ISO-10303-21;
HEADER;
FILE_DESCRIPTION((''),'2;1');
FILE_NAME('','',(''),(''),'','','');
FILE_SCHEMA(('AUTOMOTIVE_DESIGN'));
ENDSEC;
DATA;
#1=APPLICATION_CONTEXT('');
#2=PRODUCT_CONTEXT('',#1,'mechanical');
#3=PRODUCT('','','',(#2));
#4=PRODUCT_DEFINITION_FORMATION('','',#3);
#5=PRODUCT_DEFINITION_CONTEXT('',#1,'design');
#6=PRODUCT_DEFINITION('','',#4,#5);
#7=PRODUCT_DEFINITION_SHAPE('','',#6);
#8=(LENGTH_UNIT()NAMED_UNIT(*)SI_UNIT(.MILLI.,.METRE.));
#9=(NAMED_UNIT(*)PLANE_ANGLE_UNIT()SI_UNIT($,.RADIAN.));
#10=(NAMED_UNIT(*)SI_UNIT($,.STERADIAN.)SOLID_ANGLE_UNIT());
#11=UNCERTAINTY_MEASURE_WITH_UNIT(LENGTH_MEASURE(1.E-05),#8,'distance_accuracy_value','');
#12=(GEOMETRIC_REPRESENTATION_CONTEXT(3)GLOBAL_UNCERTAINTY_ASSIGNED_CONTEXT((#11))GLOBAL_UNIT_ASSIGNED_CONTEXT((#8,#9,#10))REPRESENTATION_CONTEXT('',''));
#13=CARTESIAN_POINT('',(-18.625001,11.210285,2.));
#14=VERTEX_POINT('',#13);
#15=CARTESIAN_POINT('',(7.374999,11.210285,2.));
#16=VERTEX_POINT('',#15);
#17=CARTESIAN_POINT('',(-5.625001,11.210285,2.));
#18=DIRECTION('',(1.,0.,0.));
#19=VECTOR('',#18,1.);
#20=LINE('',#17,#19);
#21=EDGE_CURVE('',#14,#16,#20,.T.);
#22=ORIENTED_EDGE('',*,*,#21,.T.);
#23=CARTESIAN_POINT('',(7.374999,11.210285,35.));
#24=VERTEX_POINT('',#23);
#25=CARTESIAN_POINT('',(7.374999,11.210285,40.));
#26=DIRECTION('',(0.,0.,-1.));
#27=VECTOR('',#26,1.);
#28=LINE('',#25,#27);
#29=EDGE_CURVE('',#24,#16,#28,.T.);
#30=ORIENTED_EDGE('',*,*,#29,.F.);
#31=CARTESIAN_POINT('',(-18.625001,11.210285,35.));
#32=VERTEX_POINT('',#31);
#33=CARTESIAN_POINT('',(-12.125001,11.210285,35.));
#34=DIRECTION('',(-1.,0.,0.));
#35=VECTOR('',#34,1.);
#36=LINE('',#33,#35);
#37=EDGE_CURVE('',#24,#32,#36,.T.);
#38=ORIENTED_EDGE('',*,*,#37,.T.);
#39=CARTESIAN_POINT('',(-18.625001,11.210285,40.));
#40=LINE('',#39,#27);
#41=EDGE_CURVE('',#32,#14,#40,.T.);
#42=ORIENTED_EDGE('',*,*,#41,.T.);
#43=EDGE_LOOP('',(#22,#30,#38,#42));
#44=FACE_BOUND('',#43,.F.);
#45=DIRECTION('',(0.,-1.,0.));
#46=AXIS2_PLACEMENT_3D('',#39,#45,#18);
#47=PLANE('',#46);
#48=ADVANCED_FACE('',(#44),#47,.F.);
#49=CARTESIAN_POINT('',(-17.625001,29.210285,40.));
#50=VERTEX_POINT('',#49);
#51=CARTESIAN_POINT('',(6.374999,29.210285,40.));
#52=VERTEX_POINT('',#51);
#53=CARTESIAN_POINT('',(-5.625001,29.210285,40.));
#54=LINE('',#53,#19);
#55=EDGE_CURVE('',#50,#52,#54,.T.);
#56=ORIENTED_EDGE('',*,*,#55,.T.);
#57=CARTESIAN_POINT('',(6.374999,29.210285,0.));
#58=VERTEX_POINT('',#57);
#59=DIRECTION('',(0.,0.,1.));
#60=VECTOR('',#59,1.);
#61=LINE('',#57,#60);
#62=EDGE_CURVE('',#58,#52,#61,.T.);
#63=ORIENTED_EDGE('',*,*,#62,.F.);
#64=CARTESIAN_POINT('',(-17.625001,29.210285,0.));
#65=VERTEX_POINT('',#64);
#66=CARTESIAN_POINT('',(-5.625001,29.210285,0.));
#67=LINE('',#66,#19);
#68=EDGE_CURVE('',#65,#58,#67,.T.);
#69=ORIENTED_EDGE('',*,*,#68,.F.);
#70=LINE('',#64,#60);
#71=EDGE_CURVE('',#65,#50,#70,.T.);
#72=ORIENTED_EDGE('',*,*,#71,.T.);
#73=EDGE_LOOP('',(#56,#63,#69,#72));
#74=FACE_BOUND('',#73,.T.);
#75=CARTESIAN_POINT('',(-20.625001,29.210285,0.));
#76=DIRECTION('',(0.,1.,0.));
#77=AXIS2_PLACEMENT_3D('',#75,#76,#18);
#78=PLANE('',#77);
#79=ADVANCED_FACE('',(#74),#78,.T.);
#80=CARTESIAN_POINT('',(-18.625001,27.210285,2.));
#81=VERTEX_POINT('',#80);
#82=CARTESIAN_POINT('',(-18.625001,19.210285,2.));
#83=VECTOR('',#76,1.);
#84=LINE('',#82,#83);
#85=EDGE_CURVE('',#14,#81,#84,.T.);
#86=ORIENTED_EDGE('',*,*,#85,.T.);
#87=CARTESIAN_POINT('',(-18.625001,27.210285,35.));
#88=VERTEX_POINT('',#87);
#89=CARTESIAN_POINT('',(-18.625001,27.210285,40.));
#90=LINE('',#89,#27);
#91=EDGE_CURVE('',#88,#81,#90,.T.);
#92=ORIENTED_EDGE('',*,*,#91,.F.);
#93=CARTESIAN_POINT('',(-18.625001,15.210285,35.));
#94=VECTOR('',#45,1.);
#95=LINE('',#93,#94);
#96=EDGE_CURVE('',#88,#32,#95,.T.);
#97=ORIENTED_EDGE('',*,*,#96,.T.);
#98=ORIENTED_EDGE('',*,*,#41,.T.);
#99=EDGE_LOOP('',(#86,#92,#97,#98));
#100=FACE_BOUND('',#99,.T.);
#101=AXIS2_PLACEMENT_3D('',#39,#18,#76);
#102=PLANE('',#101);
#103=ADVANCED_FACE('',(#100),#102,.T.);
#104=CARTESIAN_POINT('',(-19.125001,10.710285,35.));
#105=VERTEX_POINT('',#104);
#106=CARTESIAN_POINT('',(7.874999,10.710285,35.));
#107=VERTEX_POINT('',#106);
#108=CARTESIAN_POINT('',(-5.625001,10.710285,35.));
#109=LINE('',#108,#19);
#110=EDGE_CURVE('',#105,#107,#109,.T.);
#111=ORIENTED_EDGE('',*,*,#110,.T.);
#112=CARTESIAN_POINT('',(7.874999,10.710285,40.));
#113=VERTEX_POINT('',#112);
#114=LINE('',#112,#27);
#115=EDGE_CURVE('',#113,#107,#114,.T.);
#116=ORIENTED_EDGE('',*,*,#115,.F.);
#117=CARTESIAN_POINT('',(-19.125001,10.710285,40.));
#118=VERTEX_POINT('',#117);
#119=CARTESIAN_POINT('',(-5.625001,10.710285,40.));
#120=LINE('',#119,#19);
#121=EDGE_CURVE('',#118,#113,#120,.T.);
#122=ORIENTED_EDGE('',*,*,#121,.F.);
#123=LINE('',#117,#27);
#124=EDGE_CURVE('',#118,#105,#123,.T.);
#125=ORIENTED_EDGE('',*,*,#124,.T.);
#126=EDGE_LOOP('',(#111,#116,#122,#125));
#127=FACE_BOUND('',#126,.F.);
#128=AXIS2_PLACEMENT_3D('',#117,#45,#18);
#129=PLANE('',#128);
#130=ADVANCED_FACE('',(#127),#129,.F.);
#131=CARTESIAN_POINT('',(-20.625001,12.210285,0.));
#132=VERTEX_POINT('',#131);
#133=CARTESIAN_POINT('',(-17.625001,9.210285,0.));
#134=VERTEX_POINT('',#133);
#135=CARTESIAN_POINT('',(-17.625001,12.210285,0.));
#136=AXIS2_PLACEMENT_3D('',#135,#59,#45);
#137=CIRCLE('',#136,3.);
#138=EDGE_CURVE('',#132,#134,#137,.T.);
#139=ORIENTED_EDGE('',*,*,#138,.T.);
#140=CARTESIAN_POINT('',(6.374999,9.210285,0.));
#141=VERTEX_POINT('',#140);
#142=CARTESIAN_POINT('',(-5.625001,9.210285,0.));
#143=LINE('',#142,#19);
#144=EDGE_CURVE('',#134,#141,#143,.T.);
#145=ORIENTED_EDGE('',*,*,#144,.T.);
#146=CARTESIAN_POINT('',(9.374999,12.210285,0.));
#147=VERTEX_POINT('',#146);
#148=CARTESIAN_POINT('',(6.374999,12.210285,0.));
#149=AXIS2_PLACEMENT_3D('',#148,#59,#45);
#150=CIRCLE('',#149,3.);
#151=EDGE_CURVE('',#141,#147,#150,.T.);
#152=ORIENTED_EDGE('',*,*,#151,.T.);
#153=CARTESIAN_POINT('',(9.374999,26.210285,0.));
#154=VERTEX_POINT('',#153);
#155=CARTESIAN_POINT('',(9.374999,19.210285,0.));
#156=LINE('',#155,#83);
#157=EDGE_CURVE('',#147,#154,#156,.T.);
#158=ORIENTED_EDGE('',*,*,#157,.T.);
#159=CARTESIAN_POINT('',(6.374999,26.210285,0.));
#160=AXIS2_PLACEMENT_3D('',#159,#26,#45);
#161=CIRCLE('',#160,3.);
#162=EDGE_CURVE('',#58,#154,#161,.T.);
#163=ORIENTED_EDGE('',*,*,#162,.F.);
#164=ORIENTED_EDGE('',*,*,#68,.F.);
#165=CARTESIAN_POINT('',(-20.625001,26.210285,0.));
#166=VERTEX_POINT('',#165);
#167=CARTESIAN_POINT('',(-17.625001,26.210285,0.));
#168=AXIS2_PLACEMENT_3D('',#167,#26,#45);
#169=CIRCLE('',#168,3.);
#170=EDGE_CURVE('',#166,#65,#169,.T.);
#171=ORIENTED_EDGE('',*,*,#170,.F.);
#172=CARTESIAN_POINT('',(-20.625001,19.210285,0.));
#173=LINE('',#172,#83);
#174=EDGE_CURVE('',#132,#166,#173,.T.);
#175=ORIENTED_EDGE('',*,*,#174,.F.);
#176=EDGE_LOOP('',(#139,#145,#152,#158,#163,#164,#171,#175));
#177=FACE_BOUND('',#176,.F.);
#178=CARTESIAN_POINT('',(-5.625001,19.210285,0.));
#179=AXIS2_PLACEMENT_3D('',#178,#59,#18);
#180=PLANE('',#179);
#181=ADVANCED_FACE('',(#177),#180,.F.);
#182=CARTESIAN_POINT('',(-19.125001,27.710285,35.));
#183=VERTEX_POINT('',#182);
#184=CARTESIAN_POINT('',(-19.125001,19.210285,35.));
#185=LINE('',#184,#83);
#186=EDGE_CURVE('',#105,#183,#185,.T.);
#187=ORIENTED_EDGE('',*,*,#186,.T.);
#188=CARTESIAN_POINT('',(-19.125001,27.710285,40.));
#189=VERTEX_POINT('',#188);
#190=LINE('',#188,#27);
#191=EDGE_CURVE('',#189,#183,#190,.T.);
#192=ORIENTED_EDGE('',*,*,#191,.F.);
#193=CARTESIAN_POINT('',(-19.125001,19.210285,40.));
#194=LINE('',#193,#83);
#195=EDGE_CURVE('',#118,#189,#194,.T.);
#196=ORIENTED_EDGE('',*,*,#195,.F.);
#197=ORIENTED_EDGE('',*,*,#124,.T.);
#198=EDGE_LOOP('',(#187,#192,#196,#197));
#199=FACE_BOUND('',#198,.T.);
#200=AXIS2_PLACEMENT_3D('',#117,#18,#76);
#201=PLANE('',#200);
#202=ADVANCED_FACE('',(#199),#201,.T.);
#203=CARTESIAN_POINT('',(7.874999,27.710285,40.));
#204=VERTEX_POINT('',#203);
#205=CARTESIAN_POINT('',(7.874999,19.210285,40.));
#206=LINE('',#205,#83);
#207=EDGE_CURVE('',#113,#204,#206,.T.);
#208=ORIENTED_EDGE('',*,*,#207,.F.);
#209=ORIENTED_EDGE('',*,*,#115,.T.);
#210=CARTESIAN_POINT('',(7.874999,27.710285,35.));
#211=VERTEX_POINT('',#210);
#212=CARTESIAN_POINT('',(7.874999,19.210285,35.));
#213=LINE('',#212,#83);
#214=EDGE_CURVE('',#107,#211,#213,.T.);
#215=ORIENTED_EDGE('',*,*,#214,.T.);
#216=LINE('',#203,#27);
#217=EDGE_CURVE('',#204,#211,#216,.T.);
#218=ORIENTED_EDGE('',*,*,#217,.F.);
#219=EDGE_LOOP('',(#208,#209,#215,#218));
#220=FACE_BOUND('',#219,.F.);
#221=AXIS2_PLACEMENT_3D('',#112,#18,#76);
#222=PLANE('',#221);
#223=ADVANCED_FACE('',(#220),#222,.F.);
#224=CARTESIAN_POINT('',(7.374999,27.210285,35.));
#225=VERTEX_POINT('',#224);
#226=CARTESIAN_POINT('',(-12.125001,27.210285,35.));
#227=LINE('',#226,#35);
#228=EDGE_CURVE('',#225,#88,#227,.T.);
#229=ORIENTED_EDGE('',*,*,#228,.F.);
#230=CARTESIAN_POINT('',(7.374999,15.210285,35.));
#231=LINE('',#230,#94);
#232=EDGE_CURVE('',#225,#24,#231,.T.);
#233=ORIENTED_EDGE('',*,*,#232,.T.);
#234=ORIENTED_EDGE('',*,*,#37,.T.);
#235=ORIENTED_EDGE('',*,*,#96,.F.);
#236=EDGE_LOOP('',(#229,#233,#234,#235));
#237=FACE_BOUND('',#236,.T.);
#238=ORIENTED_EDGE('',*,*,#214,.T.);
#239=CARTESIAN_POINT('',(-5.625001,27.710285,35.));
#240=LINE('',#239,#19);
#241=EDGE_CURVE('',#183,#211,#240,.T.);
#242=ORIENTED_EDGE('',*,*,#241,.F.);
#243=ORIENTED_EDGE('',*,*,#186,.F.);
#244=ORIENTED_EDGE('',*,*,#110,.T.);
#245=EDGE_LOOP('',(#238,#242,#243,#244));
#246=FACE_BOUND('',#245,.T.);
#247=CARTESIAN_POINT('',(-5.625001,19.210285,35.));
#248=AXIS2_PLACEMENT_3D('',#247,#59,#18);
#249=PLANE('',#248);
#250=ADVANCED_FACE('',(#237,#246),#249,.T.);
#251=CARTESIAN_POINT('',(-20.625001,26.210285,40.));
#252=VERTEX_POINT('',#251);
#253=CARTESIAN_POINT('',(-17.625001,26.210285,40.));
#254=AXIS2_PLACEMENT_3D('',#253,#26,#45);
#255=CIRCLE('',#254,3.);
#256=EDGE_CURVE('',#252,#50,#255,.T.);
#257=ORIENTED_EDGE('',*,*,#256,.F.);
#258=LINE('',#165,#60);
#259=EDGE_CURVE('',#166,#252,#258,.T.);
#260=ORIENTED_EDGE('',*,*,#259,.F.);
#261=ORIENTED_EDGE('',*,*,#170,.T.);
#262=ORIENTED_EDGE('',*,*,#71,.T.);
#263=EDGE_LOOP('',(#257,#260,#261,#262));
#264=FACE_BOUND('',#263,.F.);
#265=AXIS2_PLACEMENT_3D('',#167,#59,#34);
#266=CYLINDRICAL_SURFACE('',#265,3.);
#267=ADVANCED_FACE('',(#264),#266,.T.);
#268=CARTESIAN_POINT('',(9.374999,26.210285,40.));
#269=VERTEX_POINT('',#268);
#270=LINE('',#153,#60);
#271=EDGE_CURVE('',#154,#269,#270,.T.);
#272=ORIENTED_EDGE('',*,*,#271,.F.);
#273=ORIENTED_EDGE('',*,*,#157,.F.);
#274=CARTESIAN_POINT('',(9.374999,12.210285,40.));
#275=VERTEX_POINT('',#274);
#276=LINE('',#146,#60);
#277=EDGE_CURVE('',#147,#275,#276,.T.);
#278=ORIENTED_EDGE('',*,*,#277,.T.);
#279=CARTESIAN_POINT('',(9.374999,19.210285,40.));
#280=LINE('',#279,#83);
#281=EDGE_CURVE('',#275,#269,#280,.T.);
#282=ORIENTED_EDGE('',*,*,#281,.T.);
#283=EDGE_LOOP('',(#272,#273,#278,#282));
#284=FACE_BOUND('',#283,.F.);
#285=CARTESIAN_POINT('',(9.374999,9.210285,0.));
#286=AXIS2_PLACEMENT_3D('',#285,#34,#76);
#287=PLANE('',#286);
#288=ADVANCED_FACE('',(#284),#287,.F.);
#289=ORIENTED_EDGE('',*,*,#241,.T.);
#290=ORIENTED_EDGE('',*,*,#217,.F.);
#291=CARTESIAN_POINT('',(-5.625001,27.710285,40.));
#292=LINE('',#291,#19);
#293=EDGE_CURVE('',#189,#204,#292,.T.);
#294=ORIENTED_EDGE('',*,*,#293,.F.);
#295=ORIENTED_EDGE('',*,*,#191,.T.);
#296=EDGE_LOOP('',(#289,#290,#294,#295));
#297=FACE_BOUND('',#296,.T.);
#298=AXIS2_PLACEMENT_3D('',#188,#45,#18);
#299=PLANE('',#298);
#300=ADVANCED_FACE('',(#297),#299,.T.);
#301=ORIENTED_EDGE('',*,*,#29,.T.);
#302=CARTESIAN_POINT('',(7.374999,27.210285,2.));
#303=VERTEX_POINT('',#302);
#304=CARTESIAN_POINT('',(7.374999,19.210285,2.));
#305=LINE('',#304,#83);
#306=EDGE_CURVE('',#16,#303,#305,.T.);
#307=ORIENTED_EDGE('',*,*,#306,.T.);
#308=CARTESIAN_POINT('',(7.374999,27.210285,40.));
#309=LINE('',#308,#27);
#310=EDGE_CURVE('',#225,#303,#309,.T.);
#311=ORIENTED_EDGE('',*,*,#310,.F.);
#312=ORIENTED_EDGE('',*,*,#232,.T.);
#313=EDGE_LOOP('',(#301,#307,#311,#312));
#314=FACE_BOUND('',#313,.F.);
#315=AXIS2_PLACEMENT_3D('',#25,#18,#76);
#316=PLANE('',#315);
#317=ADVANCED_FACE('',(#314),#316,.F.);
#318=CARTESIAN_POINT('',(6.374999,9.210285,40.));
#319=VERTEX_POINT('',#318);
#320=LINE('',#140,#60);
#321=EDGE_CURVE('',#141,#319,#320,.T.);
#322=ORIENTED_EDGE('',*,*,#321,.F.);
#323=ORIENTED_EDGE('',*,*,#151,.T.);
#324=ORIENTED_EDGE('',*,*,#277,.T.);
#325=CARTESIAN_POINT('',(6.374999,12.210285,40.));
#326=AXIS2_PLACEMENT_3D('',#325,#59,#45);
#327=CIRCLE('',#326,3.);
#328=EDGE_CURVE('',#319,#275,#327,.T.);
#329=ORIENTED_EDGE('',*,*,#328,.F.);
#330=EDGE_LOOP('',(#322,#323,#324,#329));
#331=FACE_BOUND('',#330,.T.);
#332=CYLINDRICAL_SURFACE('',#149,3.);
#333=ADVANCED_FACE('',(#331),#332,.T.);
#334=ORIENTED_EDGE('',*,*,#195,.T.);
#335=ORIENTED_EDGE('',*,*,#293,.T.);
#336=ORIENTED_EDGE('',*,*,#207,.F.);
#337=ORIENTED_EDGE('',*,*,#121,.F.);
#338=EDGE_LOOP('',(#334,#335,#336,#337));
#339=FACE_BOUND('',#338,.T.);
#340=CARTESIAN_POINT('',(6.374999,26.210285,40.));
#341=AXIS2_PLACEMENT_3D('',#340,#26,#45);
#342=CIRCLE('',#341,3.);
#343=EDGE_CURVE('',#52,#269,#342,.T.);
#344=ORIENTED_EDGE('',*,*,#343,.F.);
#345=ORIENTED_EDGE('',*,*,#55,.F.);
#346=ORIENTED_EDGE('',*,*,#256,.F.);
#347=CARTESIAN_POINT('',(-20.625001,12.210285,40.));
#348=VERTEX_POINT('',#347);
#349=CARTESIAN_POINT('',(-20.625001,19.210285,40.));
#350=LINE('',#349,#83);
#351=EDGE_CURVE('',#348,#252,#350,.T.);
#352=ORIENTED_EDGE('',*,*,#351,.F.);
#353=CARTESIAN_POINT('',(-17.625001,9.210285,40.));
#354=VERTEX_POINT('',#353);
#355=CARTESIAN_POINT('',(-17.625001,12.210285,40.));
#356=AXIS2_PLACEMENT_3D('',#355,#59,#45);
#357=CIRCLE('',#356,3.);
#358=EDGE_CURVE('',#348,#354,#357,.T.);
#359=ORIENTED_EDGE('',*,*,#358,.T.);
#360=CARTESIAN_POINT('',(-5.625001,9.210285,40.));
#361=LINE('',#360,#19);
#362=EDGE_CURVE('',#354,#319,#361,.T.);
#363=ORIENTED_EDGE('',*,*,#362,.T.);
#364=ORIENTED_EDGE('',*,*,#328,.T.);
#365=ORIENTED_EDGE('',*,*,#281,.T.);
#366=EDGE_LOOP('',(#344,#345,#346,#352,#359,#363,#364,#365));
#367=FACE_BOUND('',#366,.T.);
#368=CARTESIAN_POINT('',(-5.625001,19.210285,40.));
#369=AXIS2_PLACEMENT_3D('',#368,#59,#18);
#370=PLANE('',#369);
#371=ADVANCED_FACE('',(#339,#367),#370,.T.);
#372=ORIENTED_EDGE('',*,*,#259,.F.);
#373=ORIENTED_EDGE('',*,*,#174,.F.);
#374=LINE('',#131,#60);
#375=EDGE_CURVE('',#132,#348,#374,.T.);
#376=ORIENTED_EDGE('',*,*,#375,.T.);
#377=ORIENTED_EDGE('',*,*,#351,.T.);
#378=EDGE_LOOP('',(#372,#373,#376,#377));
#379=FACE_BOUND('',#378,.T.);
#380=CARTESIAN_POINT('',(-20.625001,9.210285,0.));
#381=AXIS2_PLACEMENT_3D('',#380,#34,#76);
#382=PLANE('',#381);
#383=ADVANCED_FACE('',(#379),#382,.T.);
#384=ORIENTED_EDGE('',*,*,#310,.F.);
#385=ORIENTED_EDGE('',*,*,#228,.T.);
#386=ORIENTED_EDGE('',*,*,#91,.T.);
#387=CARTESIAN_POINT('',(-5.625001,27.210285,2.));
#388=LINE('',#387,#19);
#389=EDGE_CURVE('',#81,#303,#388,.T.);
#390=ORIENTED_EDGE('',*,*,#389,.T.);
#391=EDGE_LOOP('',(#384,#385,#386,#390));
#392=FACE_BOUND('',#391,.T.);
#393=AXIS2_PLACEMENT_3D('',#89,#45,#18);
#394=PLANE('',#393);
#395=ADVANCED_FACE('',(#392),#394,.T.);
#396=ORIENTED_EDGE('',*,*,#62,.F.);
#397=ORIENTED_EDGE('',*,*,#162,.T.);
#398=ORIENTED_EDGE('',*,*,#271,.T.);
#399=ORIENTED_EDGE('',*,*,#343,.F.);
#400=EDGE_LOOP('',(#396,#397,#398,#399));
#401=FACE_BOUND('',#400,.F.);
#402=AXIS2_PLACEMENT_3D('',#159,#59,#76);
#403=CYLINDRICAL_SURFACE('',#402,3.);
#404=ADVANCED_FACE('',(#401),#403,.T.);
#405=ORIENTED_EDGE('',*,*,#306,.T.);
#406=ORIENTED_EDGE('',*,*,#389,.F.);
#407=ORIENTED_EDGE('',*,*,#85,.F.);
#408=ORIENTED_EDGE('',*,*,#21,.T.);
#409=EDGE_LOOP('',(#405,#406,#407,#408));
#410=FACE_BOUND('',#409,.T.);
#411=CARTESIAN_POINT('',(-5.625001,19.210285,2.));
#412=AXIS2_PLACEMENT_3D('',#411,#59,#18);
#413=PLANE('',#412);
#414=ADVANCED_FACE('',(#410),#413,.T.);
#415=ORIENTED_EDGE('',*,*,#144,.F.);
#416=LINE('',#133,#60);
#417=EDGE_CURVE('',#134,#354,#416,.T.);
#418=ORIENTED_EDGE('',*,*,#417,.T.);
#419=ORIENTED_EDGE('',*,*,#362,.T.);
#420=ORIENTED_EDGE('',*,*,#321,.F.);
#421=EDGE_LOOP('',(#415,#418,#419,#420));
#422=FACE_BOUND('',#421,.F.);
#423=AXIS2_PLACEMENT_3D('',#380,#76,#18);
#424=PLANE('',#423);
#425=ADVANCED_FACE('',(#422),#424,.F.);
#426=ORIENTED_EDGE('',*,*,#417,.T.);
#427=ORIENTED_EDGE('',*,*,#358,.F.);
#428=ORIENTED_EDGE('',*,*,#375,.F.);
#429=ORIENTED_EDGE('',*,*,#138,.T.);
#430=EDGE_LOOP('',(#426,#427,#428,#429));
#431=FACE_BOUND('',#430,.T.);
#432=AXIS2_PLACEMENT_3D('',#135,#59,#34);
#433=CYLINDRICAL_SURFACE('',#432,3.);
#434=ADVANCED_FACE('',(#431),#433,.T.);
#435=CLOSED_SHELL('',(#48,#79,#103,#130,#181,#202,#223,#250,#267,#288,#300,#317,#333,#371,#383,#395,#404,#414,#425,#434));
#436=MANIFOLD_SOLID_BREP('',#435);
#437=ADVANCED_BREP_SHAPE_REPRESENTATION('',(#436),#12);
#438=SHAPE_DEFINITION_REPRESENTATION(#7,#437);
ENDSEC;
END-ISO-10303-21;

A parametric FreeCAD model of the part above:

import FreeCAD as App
import Part
import Sketcher


def edges_at(feature, points):
    """Names of the edges that pass closest to the given points."""
    edges = feature.Shape.Edges
    near = lambda p: min(range(len(edges)), key=lambda i: edges[i].distToShape(Part.Vertex(*p))[0])
    return sorted({f"Edge{near(p) + 1}" for p in points})


def add_polygon(sketch, points):
    """Adds a closed chain of lines whose ends are joined by coincident constraints."""
    first, n = sketch.GeometryCount, len(points)
    for a, b in zip(points, points[1:] + points[:1]):
        sketch.addGeometry(Part.LineSegment(App.Vector(*a, 0), App.Vector(*b, 0)), False)
    for i in range(n):
        sketch.addConstraint(Sketcher.Constraint("Coincident", first + i, 2, first + (i + 1) % n, 1))

doc = App.newDocument("Part")
params = doc.addObject("Spreadsheet::Sheet", "Params")
for row, (alias, value) in enumerate([
    ("sketch1_width", "30 mm"),
    ("sketch1_height", "20 mm"),
    ("pad1_length", "40 mm"),
    ("sketch2_width", "26 mm"),
    ("sketch2_height", "16 mm"),
    ("pocket1_length", "38 mm"),
    ("sketch3_width", "27 mm"),
    ("sketch3_height", "17 mm"),
    ("pocket2_length", "5 mm"),
    ("fillet_radius", "3 mm"),
], start=1):
    params.set(f"A{row}", alias)
    params.set(f"B{row}", "=" + value)
    params.setAlias(f"B{row}", alias)

body = doc.addObject("PartDesign::Body", "Body")

# Sketch on XY plane
sketch1 = body.newObject("Sketcher::SketchObject", "Sketch")
sketch1.AttachmentSupport = (doc.getObject("XY_Plane"), [""])
sketch1.MapMode = "FlatFace"
add_polygon(sketch1, [(-20.625001, 29.210285), (-20.625001, 9.210285), (9.374999, 9.210285), (9.374999, 29.210285)])  # lines 0-3
sketch1.addConstraint([
    Sketcher.Constraint("Vertical", 0),
    Sketcher.Constraint("Horizontal", 1),
    Sketcher.Constraint("Vertical", 2),
    Sketcher.Constraint("Horizontal", 3),
    Sketcher.Constraint("DistanceX", 1, 1, 1, 2, 30.0),
    Sketcher.Constraint("DistanceY", 0, 2, 0, 1, 20.0),
    Sketcher.Constraint("DistanceX", 0, 2, -1, 1, 20.625001),
    Sketcher.Constraint("DistanceY", -1, 1, 0, 2, 9.210285),
])
sketch1.setExpression("Constraints[8]", "Params.sketch1_width")
sketch1.setExpression("Constraints[9]", "Params.sketch1_height")
pad1 = body.newObject("PartDesign::Pad", "Pad")
pad1.Profile = sketch1
pad1.setExpression("Length", "Params.pad1_length")

# Sketch on XY plane
sketch2 = body.newObject("Sketcher::SketchObject", "Sketch001")
sketch2.AttachmentSupport = (doc.getObject("XY_Plane"), [""])
sketch2.MapMode = "FlatFace"
sketch2.AttachmentOffset = App.Placement(App.Vector(0, 0, 40), App.Rotation())
add_polygon(sketch2, [(-18.625001, 27.210285), (-18.625001, 11.210285), (7.374999, 11.210285), (7.374999, 27.210285)])  # lines 0-3
sketch2.addConstraint([
    Sketcher.Constraint("Vertical", 0),
    Sketcher.Constraint("Horizontal", 1),
    Sketcher.Constraint("Vertical", 2),
    Sketcher.Constraint("Horizontal", 3),
    Sketcher.Constraint("DistanceX", 1, 1, 1, 2, 26.0),
    Sketcher.Constraint("DistanceY", 0, 2, 0, 1, 16.0),
    Sketcher.Constraint("DistanceX", 0, 2, -1, 1, 18.625001),
    Sketcher.Constraint("DistanceY", -1, 1, 0, 2, 11.210285),
])
sketch2.setExpression("Constraints[8]", "Params.sketch2_width")
sketch2.setExpression("Constraints[9]", "Params.sketch2_height")
pocket1 = body.newObject("PartDesign::Pocket", "Pocket")
pocket1.Profile = sketch2
pocket1.setExpression("Length", "Params.pocket1_length")

# Sketch on XY plane
sketch3 = body.newObject("Sketcher::SketchObject", "Sketch002")
sketch3.AttachmentSupport = (doc.getObject("XY_Plane"), [""])
sketch3.MapMode = "FlatFace"
sketch3.AttachmentOffset = App.Placement(App.Vector(0, 0, 40), App.Rotation())
add_polygon(sketch3, [(-19.125001, 27.710285), (-19.125001, 10.710285), (7.874999, 10.710285), (7.874999, 27.710285)])  # lines 0-3
sketch3.addConstraint([
    Sketcher.Constraint("Vertical", 0),
    Sketcher.Constraint("Horizontal", 1),
    Sketcher.Constraint("Vertical", 2),
    Sketcher.Constraint("Horizontal", 3),
    Sketcher.Constraint("DistanceX", 1, 1, 1, 2, 27.0),
    Sketcher.Constraint("DistanceY", 0, 2, 0, 1, 17.0),
    Sketcher.Constraint("DistanceX", 0, 2, -1, 1, 19.125001),
    Sketcher.Constraint("DistanceY", -1, 1, 0, 2, 10.710285),
])
sketch3.setExpression("Constraints[8]", "Params.sketch3_width")
sketch3.setExpression("Constraints[9]", "Params.sketch3_height")
pocket2 = body.newObject("PartDesign::Pocket", "Pocket001")
pocket2.Profile = sketch3
pocket2.setExpression("Length", "Params.pocket2_length")
doc.recompute()

fillet = body.newObject("PartDesign::Fillet", "Fillet")
fillet.Base = (pocket2, edges_at(pocket2, [
    (-20.625, 9.21, 20),
    (-20.625, 29.21, 20),
    (9.375, 9.21, 20),
    (9.375, 29.21, 20),
]))
fillet.setExpression("Radius", "Params.fillet_radius")

doc.recompute()
